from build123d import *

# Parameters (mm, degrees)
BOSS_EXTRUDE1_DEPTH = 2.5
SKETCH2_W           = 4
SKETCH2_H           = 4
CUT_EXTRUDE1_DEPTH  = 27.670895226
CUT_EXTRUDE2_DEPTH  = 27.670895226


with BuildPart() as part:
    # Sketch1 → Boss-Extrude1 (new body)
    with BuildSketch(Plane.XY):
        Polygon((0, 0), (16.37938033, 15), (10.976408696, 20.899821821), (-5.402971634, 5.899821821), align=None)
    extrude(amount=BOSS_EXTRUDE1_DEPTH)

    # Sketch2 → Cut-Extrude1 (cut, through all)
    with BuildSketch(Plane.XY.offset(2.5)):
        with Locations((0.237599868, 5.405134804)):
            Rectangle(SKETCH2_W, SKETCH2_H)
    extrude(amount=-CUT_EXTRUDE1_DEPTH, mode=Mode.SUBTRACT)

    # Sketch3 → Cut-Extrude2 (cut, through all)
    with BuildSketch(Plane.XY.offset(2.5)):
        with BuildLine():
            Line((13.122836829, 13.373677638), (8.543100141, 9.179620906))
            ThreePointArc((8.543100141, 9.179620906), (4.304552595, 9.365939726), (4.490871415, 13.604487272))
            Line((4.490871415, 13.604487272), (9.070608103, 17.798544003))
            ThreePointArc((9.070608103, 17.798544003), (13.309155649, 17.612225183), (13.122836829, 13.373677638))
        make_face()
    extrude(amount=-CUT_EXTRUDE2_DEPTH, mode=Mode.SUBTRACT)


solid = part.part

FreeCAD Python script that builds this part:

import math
import FreeCAD as App
import Part
import Sketcher
Q = App.Units.Quantity

doc = App.newDocument("Part")
body = doc.addObject("PartDesign::Body", "Body")

sketch1 = body.newObject("Sketcher::SketchObject", "Sketch")
sketch1.AttachmentSupport = (doc.getObject("XY_Plane"), [""])
sketch1.MapMode = "FlatFace"
sketch1.addGeometry(Part.LineSegment(App.Vector(0, 0, 0), App.Vector(16, 15, 0)), False)
sketch1.addGeometry(Part.LineSegment(App.Vector(16, 15, 0), App.Vector(11, 21, 0)), False)
sketch1.addGeometry(Part.LineSegment(App.Vector(11, 21, 0), App.Vector(-5, 6, 0)), False)
sketch1.addGeometry(Part.LineSegment(App.Vector(-5, 6, 0), App.Vector(0, 0, 0)), False)
sketch1.addConstraint(Sketcher.Constraint("Coincident", 0, 2, 1, 1))
sketch1.addConstraint(Sketcher.Constraint("Coincident", 1, 2, 2, 1))
sketch1.addConstraint(Sketcher.Constraint("Coincident", 2, 2, 3, 1))
sketch1.addConstraint(Sketcher.Constraint("Coincident", 3, 2, 0, 1))
sketch1.addConstraint(Sketcher.Constraint("Coincident", 3, 2, -1, 1))
sketch1.addConstraint(Sketcher.Constraint("Perpendicular", 0, 1))
sketch1.addConstraint(Sketcher.Constraint("Perpendicular", 1, 2))
sketch1.addConstraint(Sketcher.Constraint("Perpendicular", 2, 3))
sketch1.addConstraint(Sketcher.Constraint("Distance", 1, Q("8 mm")))
sketch1.addConstraint(Sketcher.Constraint("DistanceY", -1, 1, 0, 2, Q("15 mm")))
sketch1.addConstraint(Sketcher.Constraint("Distance", 0, Q("22.21 mm")))
pad1 = body.newObject("PartDesign::Pad", "Pad")
pad1.Profile = sketch1
pad1.Length = 2.5

sketch2 = body.newObject("Sketcher::SketchObject", "Sketch001")
sketch2.AttachmentSupport = (doc.getObject("XY_Plane"), [""])
sketch2.MapMode = "FlatFace"
sketch2.AttachmentOffset = App.Placement(App.Vector(0, 0, 2.5), App.Rotation())
sketch2.addGeometry(Part.LineSegment(App.Vector(-1.8, 7.4, 0), App.Vector(-1.8, 3.4, 0)), False)
sketch2.addGeometry(Part.LineSegment(App.Vector(-1.8, 3.4, 0), App.Vector(2.2, 3.4, 0)), False)
sketch2.addGeometry(Part.LineSegment(App.Vector(2.2, 3.4, 0), App.Vector(2.2, 7.4, 0)), False)
sketch2.addGeometry(Part.LineSegment(App.Vector(2.2, 7.4, 0), App.Vector(-1.8, 7.4, 0)), False)
sketch2.addConstraint(Sketcher.Constraint("Coincident", 0, 2, 1, 1))
sketch2.addConstraint(Sketcher.Constraint("Coincident", 1, 2, 2, 1))
sketch2.addConstraint(Sketcher.Constraint("Coincident", 2, 2, 3, 1))
sketch2.addConstraint(Sketcher.Constraint("Coincident", 3, 2, 0, 1))
sketch2.addConstraint(Sketcher.Constraint("Vertical", 0))
sketch2.addConstraint(Sketcher.Constraint("Horizontal", 1))
sketch2.addConstraint(Sketcher.Constraint("Vertical", 2))
sketch2.addConstraint(Sketcher.Constraint("Horizontal", 3))
sketch2.addConstraint(Sketcher.Constraint("Equal", 3, 0))
sketch2.addConstraint(Sketcher.Constraint("DistanceX", 1, 1, 1, 2, Q("4 mm")))
sketch2.addConstraint(Sketcher.Constraint("DistanceX", 0, 2, -1, 1, Q("1.7624 mm")))
sketch2.addConstraint(Sketcher.Constraint("DistanceY", -1, 1, 0, 2, Q("3.405135 mm")))
pocket1 = body.newObject("PartDesign::Pocket", "Pocket")
pocket1.Profile = sketch2
pocket1.Type = "ThroughAll"

sketch3 = body.newObject("Sketcher::SketchObject", "Sketch002")
sketch3.AttachmentSupport = (doc.getObject("XY_Plane"), [""])
sketch3.MapMode = "FlatFace"
sketch3.AttachmentOffset = App.Placement(App.Vector(0, 0, 2.5), App.Rotation())
sketch3.addGeometry(Part.LineSegment(App.Vector(8.5, 9.2, 0), App.Vector(13.1, 13.4, 0)), False)
sketch3.addGeometry(Part.ArcOfCircle(Part.Circle(App.Vector(11.1, 15.6, 0), App.Vector(0, 0, 1), 3), math.radians(-48), math.radians(132)), False)
sketch3.addGeometry(Part.LineSegment(App.Vector(9.1, 17.8, 0), App.Vector(4.5, 13.6, 0)), False)
sketch3.addGeometry(Part.ArcOfCircle(Part.Circle(App.Vector(6.5, 11.4, 0), App.Vector(0, 0, 1), 3), math.radians(132), math.radians(312)), False)
sketch3.addConstraint(Sketcher.Constraint("Tangent", 0, 2, 1, 1))
sketch3.addConstraint(Sketcher.Constraint("Tangent", 1, 2, 2, 1))
sketch3.addConstraint(Sketcher.Constraint("Tangent", 2, 2, 3, 1))
sketch3.addConstraint(Sketcher.Constraint("Tangent", 3, 2, 0, 1))
sketch3.addConstraint(Sketcher.Constraint("Equal", 1, 3))
sketch3.addConstraint(Sketcher.Constraint("Radius", 1, Q("3 mm")))
sketch3.addConstraint(Sketcher.Constraint("Distance", 0, Q("6.21 mm")))
sketch3.addConstraint(Sketcher.Constraint("DistanceX", -1, 1, 3, 2, Q("8.5431 mm")))
sketch3.addConstraint(Sketcher.Constraint("DistanceY", -1, 1, 1, 3, Q("15.586111 mm")))
sketch3.addConstraint(Sketcher.Constraint("DistanceX", -1, 1, 1, 2, Q("9.070608 mm")))
pocket2 = body.newObject("PartDesign::Pocket", "Pocket001")
pocket2.Profile = sketch3
pocket2.Type = "ThroughAll"

doc.recompute()
